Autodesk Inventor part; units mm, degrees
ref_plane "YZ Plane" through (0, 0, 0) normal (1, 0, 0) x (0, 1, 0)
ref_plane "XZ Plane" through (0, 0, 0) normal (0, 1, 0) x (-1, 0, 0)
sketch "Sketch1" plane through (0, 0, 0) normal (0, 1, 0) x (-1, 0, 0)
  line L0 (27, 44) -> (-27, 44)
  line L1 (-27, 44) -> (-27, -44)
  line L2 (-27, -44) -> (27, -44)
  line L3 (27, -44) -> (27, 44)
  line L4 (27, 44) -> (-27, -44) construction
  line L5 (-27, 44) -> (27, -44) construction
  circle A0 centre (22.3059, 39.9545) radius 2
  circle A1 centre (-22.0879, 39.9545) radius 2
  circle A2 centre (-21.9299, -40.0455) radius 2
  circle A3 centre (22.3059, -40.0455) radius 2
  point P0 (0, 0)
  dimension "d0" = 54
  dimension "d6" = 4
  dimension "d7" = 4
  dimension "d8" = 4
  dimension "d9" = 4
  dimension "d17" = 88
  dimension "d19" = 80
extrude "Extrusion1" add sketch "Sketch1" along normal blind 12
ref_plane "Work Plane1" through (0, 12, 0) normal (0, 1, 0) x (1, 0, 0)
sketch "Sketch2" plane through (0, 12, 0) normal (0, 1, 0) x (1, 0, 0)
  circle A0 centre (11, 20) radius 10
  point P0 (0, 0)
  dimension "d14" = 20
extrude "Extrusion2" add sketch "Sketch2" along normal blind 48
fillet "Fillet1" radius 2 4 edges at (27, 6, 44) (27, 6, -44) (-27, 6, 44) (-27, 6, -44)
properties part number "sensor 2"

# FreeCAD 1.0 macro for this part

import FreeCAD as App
import Part
import Sketcher
from FreeCAD import Vector


def edges_at(feature, points):
    """Names of the edges that pass closest to the given points."""
    edges = feature.Shape.Edges
    near = lambda p: min(range(len(edges)), key=lambda i: edges[i].distToShape(Part.Vertex(*p))[0])
    return sorted({f"Edge{near(p) + 1}" for p in points})

doc = App.newDocument("Part")
params = doc.addObject("Spreadsheet::Sheet", "Params")
for row, (alias, value) in enumerate([
    ("sketch1_diameter", "4 mm"),
    ("sketch1_width", "54 mm"),
    ("sketch1_height", "88 mm"),
    ("pad1_length", "12 mm"),
    ("sketch2_diameter", "20 mm"),
    ("pad2_length", "48 mm"),
    ("fillet_radius", "2 mm"),
], start=1):
    params.set(f"A{row}", alias)
    params.set(f"B{row}", "=" + value)
    params.setAlias(f"B{row}", alias)

body = doc.addObject("PartDesign::Body", "Body")

sketch1 = body.newObject("Sketcher::SketchObject", "Sketch")
sketch1.AttachmentSupport = (doc.getObject("XZ_Plane"), [""])
sketch1.MapMode = "FlatFace"
sketch1.addGeometry([
    Part.LineSegment(Vector(-27, -44, 0), Vector(-27, 44, 0)),
    Part.LineSegment(Vector(-27, 44, 0), Vector(27, 44, 0)),
    Part.LineSegment(Vector(27, 44, 0), Vector(27, -44, 0)),
    Part.LineSegment(Vector(27, -44, 0), Vector(-27, -44, 0)),
    Part.Circle(Vector(21.9299, -40.0455, 0), Vector(0, 0, 1), 2),
    Part.Circle(Vector(-22.3059, -40.0455, 0), Vector(0, 0, 1), 2),
    Part.Circle(Vector(22.0879, 39.9545, 0), Vector(0, 0, 1), 2),
    Part.Circle(Vector(-22.3059, 39.9545, 0), Vector(0, 0, 1), 2),
], False)
sketch1.addConstraint([
    Sketcher.Constraint("Coincident", 0, 2, 1, 1),
    Sketcher.Constraint("Coincident", 1, 2, 2, 1),
    Sketcher.Constraint("Coincident", 2, 2, 3, 1),
    Sketcher.Constraint("Coincident", 3, 2, 0, 1),
    Sketcher.Constraint("Vertical", 0),
    Sketcher.Constraint("Horizontal", 1),
    Sketcher.Constraint("Vertical", 2),
    Sketcher.Constraint("Horizontal", 3),
    Sketcher.Constraint("Equal", 4, 5),
    Sketcher.Constraint("Equal", 5, 6),
    Sketcher.Constraint("Equal", 6, 7),
    Sketcher.Constraint("Symmetric", 0, 2, 2, 2, -1, 1),
    Sketcher.Constraint("Horizontal", 4, 3, 5, 3),
    Sketcher.Constraint("Horizontal", 6, 3, 7, 3),
    Sketcher.Constraint("Vertical", 5, 3, 7, 3),
    Sketcher.Constraint("Diameter", 4, 4.0),
    Sketcher.Constraint("DistanceX", 1, 1, 1, 2, 54.0),
    Sketcher.Constraint("DistanceY", 0, 1, 0, 2, 88.0),
    Sketcher.Constraint("DistanceY", 4, 3, 6, 3, 80.0),
    Sketcher.Constraint("DistanceX", -1, 1, 4, 3, 21.93),
    Sketcher.Constraint("DistanceX", 5, 3, -1, 1, 22.306),
    Sketcher.Constraint("DistanceX", -1, 1, 6, 3, 22.088),
    Sketcher.Constraint("DistanceY", 4, 3, -1, 1, 40.0455),
])
sketch1.setExpression("Constraints[15]", "Params.sketch1_diameter")
sketch1.setExpression("Constraints[16]", "Params.sketch1_width")
sketch1.setExpression("Constraints[17]", "Params.sketch1_height")
pad1 = body.newObject("PartDesign::Pad", "Pad")
pad1.Profile = sketch1
pad1.setExpression("Length", "Params.pad1_length")
pad1.Reversed = True

sketch2 = body.newObject("Sketcher::SketchObject", "Sketch001")
sketch2.AttachmentSupport = (doc.getObject("XZ_Plane"), [""])
sketch2.MapMode = "FlatFace"
sketch2.AttachmentOffset = App.Placement(Vector(0, 0, -12), App.Rotation())
sketch2.addGeometry(Part.Circle(Vector(11, -20, 0), Vector(0, 0, 1), 10), False)
sketch2.addConstraint([
    Sketcher.Constraint("Diameter", 0, 20.0),
    Sketcher.Constraint("DistanceY", 0, 3, -1, 1, 20.0),
    Sketcher.Constraint("DistanceX", -1, 1, 0, 3, 11.0),
])
sketch2.setExpression("Constraints[0]", "Params.sketch2_diameter")
pad2 = body.newObject("PartDesign::Pad", "Pad001")
pad2.Profile = sketch2
pad2.setExpression("Length", "Params.pad2_length")
pad2.Reversed = True
doc.recompute()

fillet = body.newObject("PartDesign::Fillet", "Fillet")
fillet.Base = (pad2, edges_at(pad2, [
    (27, 6, 44),
    (27, 6, -44),
    (-27, 6, 44),
    (-27, 6, -44),
]))
fillet.setExpression("Radius", "Params.fillet_radius")

doc.recompute()
